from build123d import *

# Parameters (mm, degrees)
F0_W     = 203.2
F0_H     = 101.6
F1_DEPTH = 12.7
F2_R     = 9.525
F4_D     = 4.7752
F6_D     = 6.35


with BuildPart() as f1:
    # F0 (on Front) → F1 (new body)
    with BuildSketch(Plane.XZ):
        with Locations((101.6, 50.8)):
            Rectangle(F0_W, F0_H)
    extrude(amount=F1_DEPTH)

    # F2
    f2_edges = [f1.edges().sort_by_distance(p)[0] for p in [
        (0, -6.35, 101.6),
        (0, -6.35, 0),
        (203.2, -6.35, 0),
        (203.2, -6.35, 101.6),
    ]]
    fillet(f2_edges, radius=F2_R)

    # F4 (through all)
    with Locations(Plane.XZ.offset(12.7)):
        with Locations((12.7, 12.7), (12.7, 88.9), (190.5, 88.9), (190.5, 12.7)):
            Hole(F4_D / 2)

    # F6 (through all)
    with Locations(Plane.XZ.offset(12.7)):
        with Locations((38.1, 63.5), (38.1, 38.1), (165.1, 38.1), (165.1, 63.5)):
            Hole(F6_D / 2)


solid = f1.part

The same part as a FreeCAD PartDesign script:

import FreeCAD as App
import Part
import Sketcher
Q = App.Units.Quantity


def edges_at(feature, points):
    """Names of the edges that pass closest to the given points."""
    edges = feature.Shape.Edges
    near = lambda p: min(range(len(edges)), key=lambda i: edges[i].distToShape(Part.Vertex(*p))[0])
    return sorted({f"Edge{near(p) + 1}" for p in points})


def add_polygon(sketch, points):
    """Adds a closed chain of lines whose ends are joined by coincident constraints."""
    first, n = sketch.GeometryCount, len(points)
    for a, b in zip(points, points[1:] + points[:1]):
        sketch.addGeometry(Part.LineSegment(App.Vector(*a, 0), App.Vector(*b, 0)), False)
    for i in range(n):
        sketch.addConstraint(Sketcher.Constraint("Coincident", first + i, 2, first + (i + 1) % n, 1))

doc = App.newDocument("Part")
body = doc.addObject("PartDesign::Body", "Body")

# Sketch on XZ plane
sketch1 = doc.addObject("Sketcher::SketchObject", "Sketch")
body.addObject(sketch1)
sketch1.AttachmentSupport = (doc.XZ_Plane, [""])
sketch1.MapMode = "FlatFace"
add_polygon(sketch1, [(0, 102), (0, 0), (203, 0), (203, 102)])  # lines 0-3
sketch1.addConstraint([
    Sketcher.Constraint("Vertical", 0),
    Sketcher.Constraint("Horizontal", 1),
    Sketcher.Constraint("Vertical", 2),
    Sketcher.Constraint("Horizontal", 3),
    Sketcher.Constraint("Coincident", 0, 2, -1, 1),
    Sketcher.Constraint("DistanceX", 1, 1, 1, 2, Q("8 in")),
    Sketcher.Constraint("DistanceY", 0, 2, 0, 1, Q("4 in")),
])
pad1 = doc.addObject("PartDesign::Pad", "Pad")
body.addObject(pad1)
pad1.Profile = sketch1
pad1.Length = Q("0.5 in")
doc.recompute()

fillet = doc.addObject("PartDesign::Fillet", "Fillet")
body.addObject(fillet)
fillet.Base = (pad1, edges_at(pad1, [
    (0, -6.35, 101.6),
    (0, -6.35, 0),
    (203.2, -6.35, 0),
    (203.2, -6.35, 101.6),
]))
fillet.Radius = Q("0.375 in")

# Sketch on XZ plane
sketch2 = doc.addObject("Sketcher::SketchObject", "Sketch001")
body.addObject(sketch2)
sketch2.AttachmentSupport = (doc.XZ_Plane, [""])
sketch2.MapMode = "FlatFace"
sketch2.AttachmentOffset = App.Placement(App.Vector(0, 0, 0.5 * 25.4), App.Rotation())
sketch2.addGeometry([
    Part.Circle(App.Vector(12.7, 12.7, 0), App.Vector(0, 0, 1), 2.4),
    Part.Circle(App.Vector(12.7, 88.9, 0), App.Vector(0, 0, 1), 2.4),
    Part.Circle(App.Vector(190.5, 88.9, 0), App.Vector(0, 0, 1), 2.4),
    Part.Circle(App.Vector(190.5, 12.7, 0), App.Vector(0, 0, 1), 2.4),
], False)
sketch2.addConstraint([
    Sketcher.Constraint("Equal", 0, 1),
    Sketcher.Constraint("Equal", 1, 2),
    Sketcher.Constraint("Equal", 2, 3),
    Sketcher.Constraint("Horizontal", 1, 3, 2, 3),
    Sketcher.Constraint("Horizontal", 0, 3, 3, 3),
    Sketcher.Constraint("Vertical", 0, 3, 1, 3),
    Sketcher.Constraint("Vertical", 2, 3, 3, 3),
    Sketcher.Constraint("Diameter", 0, Q("0.188 in")),
    Sketcher.Constraint("DistanceY", 0, 3, 1, 3, Q("3 in")),
    Sketcher.Constraint("DistanceX", 1, 3, 2, 3, Q("7 in")),
    Sketcher.Constraint("DistanceX", -1, 1, 0, 3, Q("0.5 in")),
    Sketcher.Constraint("DistanceY", -1, 1, 0, 3, Q("0.5 in")),
])
doc.recompute()
hole = doc.addObject("PartDesign::Hole", "Hole")
body.addObject(hole)
hole.Profile = sketch2
hole.ThreadType = "None"
hole.Diameter = Q("0.188 in")
hole.DepthType = "ThroughAll"

# Sketch on XZ plane
sketch3 = doc.addObject("Sketcher::SketchObject", "Sketch002")
body.addObject(sketch3)
sketch3.AttachmentSupport = (doc.XZ_Plane, [""])
sketch3.MapMode = "FlatFace"
sketch3.AttachmentOffset = App.Placement(App.Vector(0, 0, 0.5 * 25.4), App.Rotation())
sketch3.addGeometry([
    Part.Circle(App.Vector(38.1, 63.5, 0), App.Vector(0, 0, 1), 3.2),
    Part.Circle(App.Vector(38.1, 38.1, 0), App.Vector(0, 0, 1), 3.2),
    Part.Circle(App.Vector(165.1, 38.1, 0), App.Vector(0, 0, 1), 3.2),
    Part.Circle(App.Vector(165.1, 63.5, 0), App.Vector(0, 0, 1), 3.2),
], False)
sketch3.addConstraint([
    Sketcher.Constraint("Equal", 0, 1),
    Sketcher.Constraint("Equal", 1, 2),
    Sketcher.Constraint("Equal", 2, 3),
    Sketcher.Constraint("Horizontal", 1, 3, 2, 3),
    Sketcher.Constraint("Horizontal", 0, 3, 3, 3),
    Sketcher.Constraint("Vertical", 0, 3, 1, 3),
    Sketcher.Constraint("Vertical", 2, 3, 3, 3),
    Sketcher.Constraint("Diameter", 0, Q("0.25 in")),
    Sketcher.Constraint("DistanceY", 1, 3, 0, 3, Q("1 in")),
    Sketcher.Constraint("DistanceX", 1, 3, 2, 3, Q("5 in")),
    Sketcher.Constraint("DistanceX", -1, 1, 0, 3, Q("1.5 in")),
    Sketcher.Constraint("DistanceY", -1, 1, 0, 3, Q("2.5 in")),
])
doc.recompute()
hole2 = doc.addObject("PartDesign::Hole", "Hole001")
body.addObject(hole2)
hole2.Profile = sketch3
hole2.ThreadType = "None"
hole2.Diameter = Q("0.25 in")
hole2.DepthType = "ThroughAll"

doc.recompute()
